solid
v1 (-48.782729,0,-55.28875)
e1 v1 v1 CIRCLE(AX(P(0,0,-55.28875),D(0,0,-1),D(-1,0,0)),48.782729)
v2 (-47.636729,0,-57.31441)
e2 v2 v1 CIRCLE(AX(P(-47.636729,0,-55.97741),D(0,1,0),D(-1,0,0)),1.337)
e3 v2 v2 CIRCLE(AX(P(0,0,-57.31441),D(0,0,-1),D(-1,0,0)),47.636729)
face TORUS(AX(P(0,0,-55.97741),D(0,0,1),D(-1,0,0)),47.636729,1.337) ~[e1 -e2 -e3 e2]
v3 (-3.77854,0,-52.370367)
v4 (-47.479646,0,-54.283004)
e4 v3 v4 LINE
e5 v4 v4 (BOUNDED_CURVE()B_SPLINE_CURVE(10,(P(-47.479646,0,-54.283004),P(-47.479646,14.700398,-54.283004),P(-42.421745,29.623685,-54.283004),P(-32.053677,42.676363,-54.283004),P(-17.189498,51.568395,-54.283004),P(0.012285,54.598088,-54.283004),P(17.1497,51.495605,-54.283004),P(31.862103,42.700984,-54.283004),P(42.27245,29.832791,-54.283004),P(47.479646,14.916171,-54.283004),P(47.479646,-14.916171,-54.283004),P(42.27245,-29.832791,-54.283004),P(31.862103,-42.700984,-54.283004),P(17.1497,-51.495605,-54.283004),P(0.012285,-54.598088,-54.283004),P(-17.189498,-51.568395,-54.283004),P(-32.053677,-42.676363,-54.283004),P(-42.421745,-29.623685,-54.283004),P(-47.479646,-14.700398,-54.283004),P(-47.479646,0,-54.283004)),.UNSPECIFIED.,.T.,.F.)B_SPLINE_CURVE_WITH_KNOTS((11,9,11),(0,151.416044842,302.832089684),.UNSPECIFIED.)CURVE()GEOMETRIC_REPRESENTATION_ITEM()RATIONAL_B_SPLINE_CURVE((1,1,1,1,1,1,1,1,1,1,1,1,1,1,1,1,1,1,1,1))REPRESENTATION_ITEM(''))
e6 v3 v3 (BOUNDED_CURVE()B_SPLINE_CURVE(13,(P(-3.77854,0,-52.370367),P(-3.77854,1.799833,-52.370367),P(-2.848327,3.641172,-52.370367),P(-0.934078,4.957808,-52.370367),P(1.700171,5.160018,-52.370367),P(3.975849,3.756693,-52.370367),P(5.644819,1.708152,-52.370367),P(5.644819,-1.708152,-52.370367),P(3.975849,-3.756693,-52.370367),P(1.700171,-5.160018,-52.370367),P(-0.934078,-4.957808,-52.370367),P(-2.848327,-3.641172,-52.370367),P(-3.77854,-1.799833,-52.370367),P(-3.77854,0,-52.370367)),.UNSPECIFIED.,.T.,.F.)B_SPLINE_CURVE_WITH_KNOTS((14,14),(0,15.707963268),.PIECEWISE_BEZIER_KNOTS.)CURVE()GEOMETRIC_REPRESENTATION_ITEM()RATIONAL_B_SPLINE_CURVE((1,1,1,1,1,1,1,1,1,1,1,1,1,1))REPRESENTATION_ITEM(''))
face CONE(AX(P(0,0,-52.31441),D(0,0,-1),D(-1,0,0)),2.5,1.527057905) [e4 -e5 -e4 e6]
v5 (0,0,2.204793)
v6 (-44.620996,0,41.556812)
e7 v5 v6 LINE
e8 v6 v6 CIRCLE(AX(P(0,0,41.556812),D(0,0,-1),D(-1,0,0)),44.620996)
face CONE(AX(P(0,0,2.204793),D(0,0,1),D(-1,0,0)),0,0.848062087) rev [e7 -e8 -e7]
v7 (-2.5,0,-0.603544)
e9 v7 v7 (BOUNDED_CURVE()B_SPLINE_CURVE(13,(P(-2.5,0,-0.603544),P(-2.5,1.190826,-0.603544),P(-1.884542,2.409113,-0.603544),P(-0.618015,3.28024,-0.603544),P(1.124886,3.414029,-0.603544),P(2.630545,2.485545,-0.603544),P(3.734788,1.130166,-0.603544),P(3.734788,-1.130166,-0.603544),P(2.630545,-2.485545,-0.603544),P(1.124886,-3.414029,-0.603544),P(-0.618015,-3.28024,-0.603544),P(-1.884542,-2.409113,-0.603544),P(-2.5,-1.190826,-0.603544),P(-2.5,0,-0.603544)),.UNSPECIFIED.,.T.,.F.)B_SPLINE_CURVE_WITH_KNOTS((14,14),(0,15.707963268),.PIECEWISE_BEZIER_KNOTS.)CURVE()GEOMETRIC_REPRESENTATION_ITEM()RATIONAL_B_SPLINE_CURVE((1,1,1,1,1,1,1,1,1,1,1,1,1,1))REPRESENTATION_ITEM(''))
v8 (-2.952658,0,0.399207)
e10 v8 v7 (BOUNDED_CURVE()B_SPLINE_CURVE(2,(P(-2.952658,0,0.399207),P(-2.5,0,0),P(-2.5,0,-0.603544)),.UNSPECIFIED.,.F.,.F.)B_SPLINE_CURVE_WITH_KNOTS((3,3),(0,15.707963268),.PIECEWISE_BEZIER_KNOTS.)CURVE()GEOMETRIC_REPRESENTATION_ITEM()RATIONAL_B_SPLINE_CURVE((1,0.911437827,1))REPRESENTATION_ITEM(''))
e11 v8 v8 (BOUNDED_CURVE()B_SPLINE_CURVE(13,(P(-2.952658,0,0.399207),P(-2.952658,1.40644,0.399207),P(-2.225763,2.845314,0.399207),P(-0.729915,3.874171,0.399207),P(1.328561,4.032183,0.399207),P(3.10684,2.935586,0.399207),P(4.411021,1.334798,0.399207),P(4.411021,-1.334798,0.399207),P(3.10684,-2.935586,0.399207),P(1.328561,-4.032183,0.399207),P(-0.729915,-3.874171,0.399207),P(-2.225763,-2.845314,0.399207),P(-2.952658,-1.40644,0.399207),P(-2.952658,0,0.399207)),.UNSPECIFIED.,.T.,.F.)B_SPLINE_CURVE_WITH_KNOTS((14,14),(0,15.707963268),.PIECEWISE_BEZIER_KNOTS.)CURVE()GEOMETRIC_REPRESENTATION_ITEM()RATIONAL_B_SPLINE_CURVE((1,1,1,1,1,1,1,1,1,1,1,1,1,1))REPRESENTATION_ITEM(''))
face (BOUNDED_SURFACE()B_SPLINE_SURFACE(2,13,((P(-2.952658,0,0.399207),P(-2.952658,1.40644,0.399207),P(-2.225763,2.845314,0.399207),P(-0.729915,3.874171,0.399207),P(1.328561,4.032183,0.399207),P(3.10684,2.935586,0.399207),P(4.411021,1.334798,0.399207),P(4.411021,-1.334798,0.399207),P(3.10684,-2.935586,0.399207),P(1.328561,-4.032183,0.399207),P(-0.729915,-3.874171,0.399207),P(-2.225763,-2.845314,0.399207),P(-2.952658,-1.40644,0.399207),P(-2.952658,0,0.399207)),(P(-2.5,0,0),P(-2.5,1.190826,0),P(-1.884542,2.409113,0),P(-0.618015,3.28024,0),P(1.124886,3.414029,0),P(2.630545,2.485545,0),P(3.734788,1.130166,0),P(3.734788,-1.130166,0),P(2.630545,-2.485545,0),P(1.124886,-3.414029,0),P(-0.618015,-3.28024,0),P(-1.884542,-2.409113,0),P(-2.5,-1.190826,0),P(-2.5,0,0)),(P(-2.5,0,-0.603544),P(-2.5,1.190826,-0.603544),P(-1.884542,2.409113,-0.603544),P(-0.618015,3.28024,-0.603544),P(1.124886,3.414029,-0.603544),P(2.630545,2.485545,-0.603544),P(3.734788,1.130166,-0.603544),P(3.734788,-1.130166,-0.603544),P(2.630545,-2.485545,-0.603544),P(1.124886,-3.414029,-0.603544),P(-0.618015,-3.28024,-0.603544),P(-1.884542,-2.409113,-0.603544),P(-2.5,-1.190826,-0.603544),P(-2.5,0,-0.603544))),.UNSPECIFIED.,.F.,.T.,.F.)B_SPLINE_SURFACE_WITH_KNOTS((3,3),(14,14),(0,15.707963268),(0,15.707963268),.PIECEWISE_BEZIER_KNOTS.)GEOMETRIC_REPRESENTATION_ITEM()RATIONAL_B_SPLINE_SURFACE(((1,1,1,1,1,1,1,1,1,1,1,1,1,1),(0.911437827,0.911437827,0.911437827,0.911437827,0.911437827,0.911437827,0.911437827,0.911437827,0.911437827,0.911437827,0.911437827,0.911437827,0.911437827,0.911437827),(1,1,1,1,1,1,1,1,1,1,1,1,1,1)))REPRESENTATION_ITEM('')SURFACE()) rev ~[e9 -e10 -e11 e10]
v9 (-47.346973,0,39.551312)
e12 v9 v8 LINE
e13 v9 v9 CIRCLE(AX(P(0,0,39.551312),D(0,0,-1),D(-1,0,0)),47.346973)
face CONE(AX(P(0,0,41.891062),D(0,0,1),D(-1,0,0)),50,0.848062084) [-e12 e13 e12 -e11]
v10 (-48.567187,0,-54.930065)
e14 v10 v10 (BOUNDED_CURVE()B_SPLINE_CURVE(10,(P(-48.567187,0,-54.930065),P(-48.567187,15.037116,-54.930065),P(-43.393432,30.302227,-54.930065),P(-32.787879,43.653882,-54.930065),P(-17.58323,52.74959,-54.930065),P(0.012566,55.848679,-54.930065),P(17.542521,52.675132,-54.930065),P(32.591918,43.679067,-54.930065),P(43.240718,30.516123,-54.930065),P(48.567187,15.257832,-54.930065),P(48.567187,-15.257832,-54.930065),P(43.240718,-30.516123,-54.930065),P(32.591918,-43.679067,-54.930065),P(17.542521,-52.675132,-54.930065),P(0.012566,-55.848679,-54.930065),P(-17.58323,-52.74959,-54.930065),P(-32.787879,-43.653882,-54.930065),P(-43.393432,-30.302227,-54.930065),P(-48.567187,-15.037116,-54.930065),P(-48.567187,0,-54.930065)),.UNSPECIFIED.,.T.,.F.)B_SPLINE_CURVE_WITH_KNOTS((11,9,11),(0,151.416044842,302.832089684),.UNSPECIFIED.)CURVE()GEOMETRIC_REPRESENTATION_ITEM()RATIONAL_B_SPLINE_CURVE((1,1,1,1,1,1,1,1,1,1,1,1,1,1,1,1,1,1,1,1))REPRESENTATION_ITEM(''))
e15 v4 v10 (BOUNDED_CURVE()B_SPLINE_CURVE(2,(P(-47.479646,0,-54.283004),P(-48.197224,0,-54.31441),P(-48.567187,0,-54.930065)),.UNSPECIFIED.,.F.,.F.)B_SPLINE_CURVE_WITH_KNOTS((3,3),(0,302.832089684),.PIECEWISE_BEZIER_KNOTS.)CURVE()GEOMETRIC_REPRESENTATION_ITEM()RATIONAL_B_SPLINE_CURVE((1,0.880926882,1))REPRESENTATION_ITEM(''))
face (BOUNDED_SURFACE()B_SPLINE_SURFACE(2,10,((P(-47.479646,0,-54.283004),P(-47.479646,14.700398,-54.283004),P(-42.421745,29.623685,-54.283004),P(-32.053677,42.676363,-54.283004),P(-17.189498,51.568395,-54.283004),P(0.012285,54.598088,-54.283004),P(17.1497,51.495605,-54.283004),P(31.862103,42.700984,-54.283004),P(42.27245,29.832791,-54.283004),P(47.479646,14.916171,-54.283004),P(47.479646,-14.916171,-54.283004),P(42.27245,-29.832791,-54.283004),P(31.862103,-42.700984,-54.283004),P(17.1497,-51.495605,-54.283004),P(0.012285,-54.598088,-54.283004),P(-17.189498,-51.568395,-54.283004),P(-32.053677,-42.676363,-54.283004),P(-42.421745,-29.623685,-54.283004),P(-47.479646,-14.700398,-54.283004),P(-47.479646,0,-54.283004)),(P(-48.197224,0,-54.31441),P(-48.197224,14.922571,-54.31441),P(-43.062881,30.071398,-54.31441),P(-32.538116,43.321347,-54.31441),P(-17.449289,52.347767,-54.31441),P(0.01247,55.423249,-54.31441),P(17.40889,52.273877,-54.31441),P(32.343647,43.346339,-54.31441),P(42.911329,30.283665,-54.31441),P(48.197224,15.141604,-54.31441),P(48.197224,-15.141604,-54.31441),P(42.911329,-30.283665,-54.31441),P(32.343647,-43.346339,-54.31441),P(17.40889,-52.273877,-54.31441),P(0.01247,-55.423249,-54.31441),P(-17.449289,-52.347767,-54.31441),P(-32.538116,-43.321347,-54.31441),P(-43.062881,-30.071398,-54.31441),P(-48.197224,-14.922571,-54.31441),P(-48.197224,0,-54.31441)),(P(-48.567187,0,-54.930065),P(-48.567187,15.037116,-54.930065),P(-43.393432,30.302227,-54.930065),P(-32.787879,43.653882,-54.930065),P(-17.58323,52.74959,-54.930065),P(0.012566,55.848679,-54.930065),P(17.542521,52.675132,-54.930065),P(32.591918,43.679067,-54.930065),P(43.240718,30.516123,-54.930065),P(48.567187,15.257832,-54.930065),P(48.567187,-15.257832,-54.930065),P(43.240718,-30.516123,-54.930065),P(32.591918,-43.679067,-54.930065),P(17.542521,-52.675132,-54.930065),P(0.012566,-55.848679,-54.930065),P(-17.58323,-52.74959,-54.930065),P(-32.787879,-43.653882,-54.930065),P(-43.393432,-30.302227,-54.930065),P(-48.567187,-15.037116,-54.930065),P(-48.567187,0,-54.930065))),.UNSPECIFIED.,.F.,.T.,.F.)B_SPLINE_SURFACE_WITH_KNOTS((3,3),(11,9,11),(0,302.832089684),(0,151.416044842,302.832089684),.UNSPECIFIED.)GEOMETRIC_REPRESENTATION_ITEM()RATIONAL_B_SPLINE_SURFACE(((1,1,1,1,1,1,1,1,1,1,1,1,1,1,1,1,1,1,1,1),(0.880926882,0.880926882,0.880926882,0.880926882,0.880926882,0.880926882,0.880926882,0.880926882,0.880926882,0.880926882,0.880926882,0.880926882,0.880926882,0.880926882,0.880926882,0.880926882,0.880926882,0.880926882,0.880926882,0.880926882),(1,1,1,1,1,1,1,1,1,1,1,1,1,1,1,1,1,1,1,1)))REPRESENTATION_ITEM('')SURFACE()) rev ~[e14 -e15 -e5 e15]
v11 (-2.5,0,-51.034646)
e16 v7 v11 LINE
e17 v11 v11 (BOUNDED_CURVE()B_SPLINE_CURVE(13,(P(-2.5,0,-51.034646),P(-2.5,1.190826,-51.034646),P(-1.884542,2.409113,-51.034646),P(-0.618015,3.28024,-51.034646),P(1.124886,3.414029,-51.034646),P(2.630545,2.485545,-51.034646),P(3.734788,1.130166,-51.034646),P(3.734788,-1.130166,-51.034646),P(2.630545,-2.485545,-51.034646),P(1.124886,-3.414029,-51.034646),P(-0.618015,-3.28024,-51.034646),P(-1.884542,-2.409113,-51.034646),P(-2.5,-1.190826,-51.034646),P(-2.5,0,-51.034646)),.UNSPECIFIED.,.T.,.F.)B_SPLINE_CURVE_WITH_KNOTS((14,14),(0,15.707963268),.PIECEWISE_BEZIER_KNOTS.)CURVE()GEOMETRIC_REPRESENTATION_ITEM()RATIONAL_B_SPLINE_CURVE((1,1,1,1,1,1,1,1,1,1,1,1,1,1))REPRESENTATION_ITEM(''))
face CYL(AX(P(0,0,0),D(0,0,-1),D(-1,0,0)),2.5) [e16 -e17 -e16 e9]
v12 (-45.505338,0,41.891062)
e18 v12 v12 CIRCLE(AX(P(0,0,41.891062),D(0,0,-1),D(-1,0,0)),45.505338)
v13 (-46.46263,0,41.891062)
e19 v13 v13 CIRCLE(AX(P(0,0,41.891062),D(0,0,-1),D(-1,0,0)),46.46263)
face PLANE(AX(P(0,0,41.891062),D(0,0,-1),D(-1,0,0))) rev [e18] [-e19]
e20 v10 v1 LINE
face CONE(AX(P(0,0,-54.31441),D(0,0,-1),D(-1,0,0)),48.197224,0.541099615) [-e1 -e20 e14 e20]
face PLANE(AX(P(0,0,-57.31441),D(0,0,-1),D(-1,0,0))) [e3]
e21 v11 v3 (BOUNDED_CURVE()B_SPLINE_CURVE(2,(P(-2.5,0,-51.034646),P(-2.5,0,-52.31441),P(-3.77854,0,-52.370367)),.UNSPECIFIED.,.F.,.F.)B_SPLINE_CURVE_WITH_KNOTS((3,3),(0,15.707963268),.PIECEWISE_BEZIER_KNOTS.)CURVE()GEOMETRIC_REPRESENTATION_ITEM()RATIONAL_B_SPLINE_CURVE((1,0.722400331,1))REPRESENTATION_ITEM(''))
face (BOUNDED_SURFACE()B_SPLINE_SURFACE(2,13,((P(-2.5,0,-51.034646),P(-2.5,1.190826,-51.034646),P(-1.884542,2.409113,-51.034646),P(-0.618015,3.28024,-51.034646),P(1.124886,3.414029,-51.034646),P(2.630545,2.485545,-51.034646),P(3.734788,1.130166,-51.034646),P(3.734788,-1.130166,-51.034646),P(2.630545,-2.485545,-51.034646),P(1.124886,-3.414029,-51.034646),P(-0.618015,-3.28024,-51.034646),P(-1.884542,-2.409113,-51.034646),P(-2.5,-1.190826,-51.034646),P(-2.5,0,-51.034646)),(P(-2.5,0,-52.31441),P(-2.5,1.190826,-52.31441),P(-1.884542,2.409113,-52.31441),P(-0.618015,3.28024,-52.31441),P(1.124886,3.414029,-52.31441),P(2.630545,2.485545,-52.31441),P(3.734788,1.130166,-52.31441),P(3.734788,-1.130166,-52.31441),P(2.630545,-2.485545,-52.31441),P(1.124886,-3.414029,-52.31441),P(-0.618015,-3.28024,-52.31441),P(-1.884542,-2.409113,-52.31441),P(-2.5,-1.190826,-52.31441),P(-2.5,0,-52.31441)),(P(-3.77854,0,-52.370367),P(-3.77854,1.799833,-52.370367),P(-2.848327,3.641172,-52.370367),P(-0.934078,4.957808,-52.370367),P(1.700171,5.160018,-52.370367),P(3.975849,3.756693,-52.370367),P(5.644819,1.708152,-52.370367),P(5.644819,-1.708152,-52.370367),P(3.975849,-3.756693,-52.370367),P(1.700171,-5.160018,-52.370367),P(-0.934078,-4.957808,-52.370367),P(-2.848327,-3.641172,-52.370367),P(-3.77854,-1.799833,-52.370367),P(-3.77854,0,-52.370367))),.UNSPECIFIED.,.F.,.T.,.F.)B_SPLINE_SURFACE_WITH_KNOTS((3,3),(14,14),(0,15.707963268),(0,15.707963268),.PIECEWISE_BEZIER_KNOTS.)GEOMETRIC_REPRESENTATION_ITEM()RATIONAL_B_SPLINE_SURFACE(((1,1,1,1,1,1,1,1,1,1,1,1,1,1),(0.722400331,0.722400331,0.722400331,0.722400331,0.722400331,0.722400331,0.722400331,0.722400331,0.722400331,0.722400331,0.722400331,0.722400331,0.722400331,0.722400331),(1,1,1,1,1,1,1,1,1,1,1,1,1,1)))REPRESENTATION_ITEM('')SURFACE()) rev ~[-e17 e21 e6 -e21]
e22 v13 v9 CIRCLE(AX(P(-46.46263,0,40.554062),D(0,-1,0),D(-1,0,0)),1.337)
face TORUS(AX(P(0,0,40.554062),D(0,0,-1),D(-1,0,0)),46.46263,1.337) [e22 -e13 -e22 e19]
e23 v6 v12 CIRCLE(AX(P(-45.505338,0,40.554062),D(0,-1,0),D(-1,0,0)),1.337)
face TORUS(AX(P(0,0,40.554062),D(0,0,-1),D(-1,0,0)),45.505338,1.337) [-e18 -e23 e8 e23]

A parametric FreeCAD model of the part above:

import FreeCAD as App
import Part
import Sketcher

V = App.Vector


def edges_at(feature, points):
    """Names of the edges that pass closest to the given points."""
    edges = feature.Shape.Edges
    near = lambda p: min(range(len(edges)), key=lambda i: edges[i].distToShape(Part.Vertex(*p))[0])
    return sorted({f"Edge{near(p) + 1}" for p in points})


def add_polygon(sketch, points):
    """Adds a closed chain of lines whose ends are joined by coincident constraints."""
    first, n = sketch.GeometryCount, len(points)
    for a, b in zip(points, points[1:] + points[:1]):
        sketch.addGeometry(Part.LineSegment(App.Vector(*a, 0), App.Vector(*b, 0)), False)
    for i in range(n):
        sketch.addConstraint(Sketcher.Constraint("Coincident", first + i, 2, first + (i + 1) % n, 1))

doc = App.newDocument("Part")
body = doc.addObject("PartDesign::Body", "Body")

sketch1 = body.newObject("Sketcher::SketchObject", "Sketch")
sketch1.AttachmentSupport = (doc.getObject("XZ_Plane"), [""])
sketch1.MapMode = "FlatFace"
add_polygon(sketch1, [(-50, -57.3), (0, -57.3), (0, 2.2), (-45, 41.9), (-50, 41.9), (-2.5, 0), (-2.5, -52.3), (-48.2, -54.3)])
sketch1.addConstraint(Sketcher.Constraint("Horizontal", 0))
sketch1.addConstraint(Sketcher.Constraint("Vertical", 1))
sketch1.addConstraint(Sketcher.Constraint("Horizontal", 3))
sketch1.addConstraint(Sketcher.Constraint("Vertical", 5))
sketch1.addConstraint(Sketcher.Constraint("PointOnObject", 0, 2, -2))
sketch1.addConstraint(Sketcher.Constraint("PointOnObject", 4, 2, -1))
sketch1.addConstraint(Sketcher.Constraint("Parallel", 2, 4))
sketch1.addConstraint(Sketcher.Constraint("Vertical", 3, 2, 7, 2))
sketch1.addConstraint(Sketcher.Constraint("DistanceX", 0, 1, 0, 2, 50.0))
sketch1.addConstraint(Sketcher.Constraint("DistanceX", 3, 2, 3, 1, 5.0))
sketch1.addConstraint(Sketcher.Constraint("Distance", 2, 60.0))
sketch1.addConstraint(Sketcher.Constraint("DistanceY", 0, 2, 5, 2, 5.0))
sketch1.addConstraint(Sketcher.Constraint("DistanceY", 6, 2, 5, 2, 2.0))
sketch1.addConstraint(Sketcher.Constraint("Distance", 7, 3.5))
sketch1.addConstraint(Sketcher.Constraint("DistanceX", 4, 2, -1, 1, 2.5))
sketch1.addConstraint(Sketcher.Constraint("DistanceY", 5, 2, 5, 1, 52.31441))
revolution = body.newObject("PartDesign::Revolution", "Revolution")
revolution.Profile = sketch1
revolution.ReferenceAxis = (sketch1, ["V_Axis"])
revolution.Angle = 360
doc.recompute()

fillet = body.newObject("PartDesign::Fillet", "Fillet")
fillet.Base = (revolution, edges_at(revolution, [
    (50, 0, 41.891),
    (45, 0, 41.891),
    (48.197, 0, -54.314),
    (50, 0, -57.314),
    (2.5, 0, -52.314),
    (2.5, 0, 0),
]))
fillet.Radius = 1.337

doc.recompute()
